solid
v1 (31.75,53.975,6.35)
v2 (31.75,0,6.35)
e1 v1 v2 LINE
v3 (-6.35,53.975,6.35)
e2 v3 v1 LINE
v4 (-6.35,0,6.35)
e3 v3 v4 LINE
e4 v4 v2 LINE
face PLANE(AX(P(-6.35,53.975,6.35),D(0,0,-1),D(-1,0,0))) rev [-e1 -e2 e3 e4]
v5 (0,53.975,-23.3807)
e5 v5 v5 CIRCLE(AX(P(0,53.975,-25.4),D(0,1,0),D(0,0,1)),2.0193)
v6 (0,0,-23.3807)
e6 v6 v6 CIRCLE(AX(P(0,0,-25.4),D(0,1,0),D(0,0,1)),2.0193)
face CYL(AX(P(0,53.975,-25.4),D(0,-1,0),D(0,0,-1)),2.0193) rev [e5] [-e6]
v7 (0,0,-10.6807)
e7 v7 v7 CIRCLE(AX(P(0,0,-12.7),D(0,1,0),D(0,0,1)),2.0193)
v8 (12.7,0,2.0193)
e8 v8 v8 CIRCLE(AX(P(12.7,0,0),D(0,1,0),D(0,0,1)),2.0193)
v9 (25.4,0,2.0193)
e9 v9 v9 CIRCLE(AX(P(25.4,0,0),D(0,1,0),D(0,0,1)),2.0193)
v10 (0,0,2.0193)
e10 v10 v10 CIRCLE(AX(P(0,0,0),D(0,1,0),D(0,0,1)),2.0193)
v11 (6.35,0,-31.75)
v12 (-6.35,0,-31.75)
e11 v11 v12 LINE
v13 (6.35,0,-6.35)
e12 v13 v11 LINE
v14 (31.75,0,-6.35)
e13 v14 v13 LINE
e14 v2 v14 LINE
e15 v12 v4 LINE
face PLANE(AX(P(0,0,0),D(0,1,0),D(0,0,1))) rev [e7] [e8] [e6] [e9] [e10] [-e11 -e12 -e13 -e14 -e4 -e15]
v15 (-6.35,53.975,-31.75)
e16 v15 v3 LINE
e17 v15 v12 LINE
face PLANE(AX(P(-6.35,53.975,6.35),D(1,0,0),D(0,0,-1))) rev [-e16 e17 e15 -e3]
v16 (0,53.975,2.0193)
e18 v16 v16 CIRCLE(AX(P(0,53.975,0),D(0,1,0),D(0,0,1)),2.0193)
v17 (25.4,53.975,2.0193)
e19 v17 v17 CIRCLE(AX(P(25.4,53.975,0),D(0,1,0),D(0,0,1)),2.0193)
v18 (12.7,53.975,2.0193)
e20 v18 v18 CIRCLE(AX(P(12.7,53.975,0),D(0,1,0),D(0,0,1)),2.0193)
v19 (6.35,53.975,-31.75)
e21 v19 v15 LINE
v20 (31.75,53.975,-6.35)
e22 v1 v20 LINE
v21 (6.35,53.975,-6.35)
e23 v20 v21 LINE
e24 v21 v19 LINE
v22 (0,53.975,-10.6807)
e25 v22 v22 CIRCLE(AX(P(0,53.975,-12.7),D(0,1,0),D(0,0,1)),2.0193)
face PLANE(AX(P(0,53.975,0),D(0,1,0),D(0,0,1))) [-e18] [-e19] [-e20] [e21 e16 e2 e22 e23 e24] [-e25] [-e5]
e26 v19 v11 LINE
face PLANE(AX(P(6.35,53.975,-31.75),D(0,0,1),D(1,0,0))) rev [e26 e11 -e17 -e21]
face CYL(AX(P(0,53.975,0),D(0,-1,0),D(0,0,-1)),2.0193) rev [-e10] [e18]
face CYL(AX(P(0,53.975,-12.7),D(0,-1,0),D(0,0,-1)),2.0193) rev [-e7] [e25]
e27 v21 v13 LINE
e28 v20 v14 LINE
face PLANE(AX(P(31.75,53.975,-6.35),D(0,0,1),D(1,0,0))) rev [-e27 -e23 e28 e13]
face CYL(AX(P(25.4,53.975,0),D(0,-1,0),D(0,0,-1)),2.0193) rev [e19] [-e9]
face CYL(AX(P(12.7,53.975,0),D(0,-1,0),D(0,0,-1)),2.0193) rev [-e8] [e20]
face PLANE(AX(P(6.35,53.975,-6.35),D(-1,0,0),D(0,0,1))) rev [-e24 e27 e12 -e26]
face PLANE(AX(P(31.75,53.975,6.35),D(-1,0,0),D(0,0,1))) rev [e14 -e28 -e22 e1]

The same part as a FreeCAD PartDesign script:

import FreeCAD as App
import Part
import Sketcher
Q = App.Units.Quantity

doc = App.newDocument("Part")
body = doc.addObject("PartDesign::Body", "Body")

# Sketch on XZ plane
sketch1 = body.newObject("Sketcher::SketchObject", "Sketch")
sketch1.AttachmentSupport = (doc.getObject("XZ_Plane"), [""])
sketch1.MapMode = "FlatFace"
sketch1.addGeometry(Part.LineSegment(App.Vector(-6.3, 6.3, 0), App.Vector(31.8, 6.3, 0)), False)
sketch1.addGeometry(Part.LineSegment(App.Vector(31.8, 6.3, 0), App.Vector(31.8, -6.3, 0)), False)
sketch1.addGeometry(Part.LineSegment(App.Vector(31.8, -6.3, 0), App.Vector(6.3, -6.3, 0)), False)
sketch1.addGeometry(Part.LineSegment(App.Vector(6.3, -6.3, 0), App.Vector(6.3, -31.8, 0)), False)
sketch1.addGeometry(Part.LineSegment(App.Vector(6.3, -31.8, 0), App.Vector(-6.3, -31.8, 0)), False)
sketch1.addGeometry(Part.LineSegment(App.Vector(-6.3, -31.8, 0), App.Vector(-6.3, 6.3, 0)), False)
sketch1.addGeometry(Part.Circle(App.Vector(0, 0, 0), App.Vector(0, 0, 1), 2), False)
sketch1.addGeometry(Part.Circle(App.Vector(12.7, 0, 0), App.Vector(0, 0, 1), 2), False)
sketch1.addGeometry(Part.Circle(App.Vector(25.4, 0, 0), App.Vector(0, 0, 1), 2), False)
sketch1.addGeometry(Part.Circle(App.Vector(0, -12.7, 0), App.Vector(0, 0, 1), 2), False)
sketch1.addGeometry(Part.Circle(App.Vector(0, -25.4, 0), App.Vector(0, 0, 1), 2), False)
sketch1.addConstraint(Sketcher.Constraint("Coincident", 0, 2, 1, 1))
sketch1.addConstraint(Sketcher.Constraint("Coincident", 1, 2, 2, 1))
sketch1.addConstraint(Sketcher.Constraint("Coincident", 2, 2, 3, 1))
sketch1.addConstraint(Sketcher.Constraint("Coincident", 3, 2, 4, 1))
sketch1.addConstraint(Sketcher.Constraint("Coincident", 4, 2, 5, 1))
sketch1.addConstraint(Sketcher.Constraint("Coincident", 5, 2, 0, 1))
sketch1.addConstraint(Sketcher.Constraint("Horizontal", 0))
sketch1.addConstraint(Sketcher.Constraint("Vertical", 1))
sketch1.addConstraint(Sketcher.Constraint("Horizontal", 2))
sketch1.addConstraint(Sketcher.Constraint("Vertical", 3))
sketch1.addConstraint(Sketcher.Constraint("Horizontal", 4))
sketch1.addConstraint(Sketcher.Constraint("Vertical", 5))
sketch1.addConstraint(Sketcher.Constraint("Coincident", 6, 3, -1, 1))
sketch1.addConstraint(Sketcher.Constraint("Equal", 6, 7))
sketch1.addConstraint(Sketcher.Constraint("Equal", 7, 8))
sketch1.addConstraint(Sketcher.Constraint("Equal", 8, 9))
sketch1.addConstraint(Sketcher.Constraint("Equal", 9, 10))
sketch1.addConstraint(Sketcher.Constraint("Symmetric", 2, 2, 5, 2, -1, 1))
sketch1.addConstraint(Sketcher.Constraint("PointOnObject", 7, 3, -1))
sketch1.addConstraint(Sketcher.Constraint("PointOnObject", 8, 3, -1))
sketch1.addConstraint(Sketcher.Constraint("PointOnObject", 9, 3, -2))
sketch1.addConstraint(Sketcher.Constraint("PointOnObject", 10, 3, -2))
sketch1.addConstraint(Sketcher.Constraint("Equal", 4, 1))
sketch1.addConstraint(Sketcher.Constraint("Equal", 2, 3))
sketch1.addConstraint(Sketcher.Constraint("DistanceX", 2, 2, 2, 1, Q("1 in")))
sketch1.addConstraint(Sketcher.Constraint("Diameter", 6, Q("0.159 in")))
sketch1.addConstraint(Sketcher.Constraint("DistanceX", 0, 1, 0, 2, Q("1.5 in")))
sketch1.addConstraint(Sketcher.Constraint("DistanceX", -1, 1, 8, 3, Q("1 in")))
sketch1.addConstraint(Sketcher.Constraint("DistanceY", 10, 3, -1, 1, Q("1 in")))
sketch1.addConstraint(Sketcher.Constraint("DistanceX", -1, 1, 7, 3, Q("0.5 in")))
sketch1.addConstraint(Sketcher.Constraint("DistanceY", 9, 3, -1, 1, Q("0.5 in")))
pad1 = body.newObject("PartDesign::Pad", "Pad")
pad1.Profile = sketch1
pad1.Length = Q("2.125 in")
pad1.Reversed = True

doc.recompute()
